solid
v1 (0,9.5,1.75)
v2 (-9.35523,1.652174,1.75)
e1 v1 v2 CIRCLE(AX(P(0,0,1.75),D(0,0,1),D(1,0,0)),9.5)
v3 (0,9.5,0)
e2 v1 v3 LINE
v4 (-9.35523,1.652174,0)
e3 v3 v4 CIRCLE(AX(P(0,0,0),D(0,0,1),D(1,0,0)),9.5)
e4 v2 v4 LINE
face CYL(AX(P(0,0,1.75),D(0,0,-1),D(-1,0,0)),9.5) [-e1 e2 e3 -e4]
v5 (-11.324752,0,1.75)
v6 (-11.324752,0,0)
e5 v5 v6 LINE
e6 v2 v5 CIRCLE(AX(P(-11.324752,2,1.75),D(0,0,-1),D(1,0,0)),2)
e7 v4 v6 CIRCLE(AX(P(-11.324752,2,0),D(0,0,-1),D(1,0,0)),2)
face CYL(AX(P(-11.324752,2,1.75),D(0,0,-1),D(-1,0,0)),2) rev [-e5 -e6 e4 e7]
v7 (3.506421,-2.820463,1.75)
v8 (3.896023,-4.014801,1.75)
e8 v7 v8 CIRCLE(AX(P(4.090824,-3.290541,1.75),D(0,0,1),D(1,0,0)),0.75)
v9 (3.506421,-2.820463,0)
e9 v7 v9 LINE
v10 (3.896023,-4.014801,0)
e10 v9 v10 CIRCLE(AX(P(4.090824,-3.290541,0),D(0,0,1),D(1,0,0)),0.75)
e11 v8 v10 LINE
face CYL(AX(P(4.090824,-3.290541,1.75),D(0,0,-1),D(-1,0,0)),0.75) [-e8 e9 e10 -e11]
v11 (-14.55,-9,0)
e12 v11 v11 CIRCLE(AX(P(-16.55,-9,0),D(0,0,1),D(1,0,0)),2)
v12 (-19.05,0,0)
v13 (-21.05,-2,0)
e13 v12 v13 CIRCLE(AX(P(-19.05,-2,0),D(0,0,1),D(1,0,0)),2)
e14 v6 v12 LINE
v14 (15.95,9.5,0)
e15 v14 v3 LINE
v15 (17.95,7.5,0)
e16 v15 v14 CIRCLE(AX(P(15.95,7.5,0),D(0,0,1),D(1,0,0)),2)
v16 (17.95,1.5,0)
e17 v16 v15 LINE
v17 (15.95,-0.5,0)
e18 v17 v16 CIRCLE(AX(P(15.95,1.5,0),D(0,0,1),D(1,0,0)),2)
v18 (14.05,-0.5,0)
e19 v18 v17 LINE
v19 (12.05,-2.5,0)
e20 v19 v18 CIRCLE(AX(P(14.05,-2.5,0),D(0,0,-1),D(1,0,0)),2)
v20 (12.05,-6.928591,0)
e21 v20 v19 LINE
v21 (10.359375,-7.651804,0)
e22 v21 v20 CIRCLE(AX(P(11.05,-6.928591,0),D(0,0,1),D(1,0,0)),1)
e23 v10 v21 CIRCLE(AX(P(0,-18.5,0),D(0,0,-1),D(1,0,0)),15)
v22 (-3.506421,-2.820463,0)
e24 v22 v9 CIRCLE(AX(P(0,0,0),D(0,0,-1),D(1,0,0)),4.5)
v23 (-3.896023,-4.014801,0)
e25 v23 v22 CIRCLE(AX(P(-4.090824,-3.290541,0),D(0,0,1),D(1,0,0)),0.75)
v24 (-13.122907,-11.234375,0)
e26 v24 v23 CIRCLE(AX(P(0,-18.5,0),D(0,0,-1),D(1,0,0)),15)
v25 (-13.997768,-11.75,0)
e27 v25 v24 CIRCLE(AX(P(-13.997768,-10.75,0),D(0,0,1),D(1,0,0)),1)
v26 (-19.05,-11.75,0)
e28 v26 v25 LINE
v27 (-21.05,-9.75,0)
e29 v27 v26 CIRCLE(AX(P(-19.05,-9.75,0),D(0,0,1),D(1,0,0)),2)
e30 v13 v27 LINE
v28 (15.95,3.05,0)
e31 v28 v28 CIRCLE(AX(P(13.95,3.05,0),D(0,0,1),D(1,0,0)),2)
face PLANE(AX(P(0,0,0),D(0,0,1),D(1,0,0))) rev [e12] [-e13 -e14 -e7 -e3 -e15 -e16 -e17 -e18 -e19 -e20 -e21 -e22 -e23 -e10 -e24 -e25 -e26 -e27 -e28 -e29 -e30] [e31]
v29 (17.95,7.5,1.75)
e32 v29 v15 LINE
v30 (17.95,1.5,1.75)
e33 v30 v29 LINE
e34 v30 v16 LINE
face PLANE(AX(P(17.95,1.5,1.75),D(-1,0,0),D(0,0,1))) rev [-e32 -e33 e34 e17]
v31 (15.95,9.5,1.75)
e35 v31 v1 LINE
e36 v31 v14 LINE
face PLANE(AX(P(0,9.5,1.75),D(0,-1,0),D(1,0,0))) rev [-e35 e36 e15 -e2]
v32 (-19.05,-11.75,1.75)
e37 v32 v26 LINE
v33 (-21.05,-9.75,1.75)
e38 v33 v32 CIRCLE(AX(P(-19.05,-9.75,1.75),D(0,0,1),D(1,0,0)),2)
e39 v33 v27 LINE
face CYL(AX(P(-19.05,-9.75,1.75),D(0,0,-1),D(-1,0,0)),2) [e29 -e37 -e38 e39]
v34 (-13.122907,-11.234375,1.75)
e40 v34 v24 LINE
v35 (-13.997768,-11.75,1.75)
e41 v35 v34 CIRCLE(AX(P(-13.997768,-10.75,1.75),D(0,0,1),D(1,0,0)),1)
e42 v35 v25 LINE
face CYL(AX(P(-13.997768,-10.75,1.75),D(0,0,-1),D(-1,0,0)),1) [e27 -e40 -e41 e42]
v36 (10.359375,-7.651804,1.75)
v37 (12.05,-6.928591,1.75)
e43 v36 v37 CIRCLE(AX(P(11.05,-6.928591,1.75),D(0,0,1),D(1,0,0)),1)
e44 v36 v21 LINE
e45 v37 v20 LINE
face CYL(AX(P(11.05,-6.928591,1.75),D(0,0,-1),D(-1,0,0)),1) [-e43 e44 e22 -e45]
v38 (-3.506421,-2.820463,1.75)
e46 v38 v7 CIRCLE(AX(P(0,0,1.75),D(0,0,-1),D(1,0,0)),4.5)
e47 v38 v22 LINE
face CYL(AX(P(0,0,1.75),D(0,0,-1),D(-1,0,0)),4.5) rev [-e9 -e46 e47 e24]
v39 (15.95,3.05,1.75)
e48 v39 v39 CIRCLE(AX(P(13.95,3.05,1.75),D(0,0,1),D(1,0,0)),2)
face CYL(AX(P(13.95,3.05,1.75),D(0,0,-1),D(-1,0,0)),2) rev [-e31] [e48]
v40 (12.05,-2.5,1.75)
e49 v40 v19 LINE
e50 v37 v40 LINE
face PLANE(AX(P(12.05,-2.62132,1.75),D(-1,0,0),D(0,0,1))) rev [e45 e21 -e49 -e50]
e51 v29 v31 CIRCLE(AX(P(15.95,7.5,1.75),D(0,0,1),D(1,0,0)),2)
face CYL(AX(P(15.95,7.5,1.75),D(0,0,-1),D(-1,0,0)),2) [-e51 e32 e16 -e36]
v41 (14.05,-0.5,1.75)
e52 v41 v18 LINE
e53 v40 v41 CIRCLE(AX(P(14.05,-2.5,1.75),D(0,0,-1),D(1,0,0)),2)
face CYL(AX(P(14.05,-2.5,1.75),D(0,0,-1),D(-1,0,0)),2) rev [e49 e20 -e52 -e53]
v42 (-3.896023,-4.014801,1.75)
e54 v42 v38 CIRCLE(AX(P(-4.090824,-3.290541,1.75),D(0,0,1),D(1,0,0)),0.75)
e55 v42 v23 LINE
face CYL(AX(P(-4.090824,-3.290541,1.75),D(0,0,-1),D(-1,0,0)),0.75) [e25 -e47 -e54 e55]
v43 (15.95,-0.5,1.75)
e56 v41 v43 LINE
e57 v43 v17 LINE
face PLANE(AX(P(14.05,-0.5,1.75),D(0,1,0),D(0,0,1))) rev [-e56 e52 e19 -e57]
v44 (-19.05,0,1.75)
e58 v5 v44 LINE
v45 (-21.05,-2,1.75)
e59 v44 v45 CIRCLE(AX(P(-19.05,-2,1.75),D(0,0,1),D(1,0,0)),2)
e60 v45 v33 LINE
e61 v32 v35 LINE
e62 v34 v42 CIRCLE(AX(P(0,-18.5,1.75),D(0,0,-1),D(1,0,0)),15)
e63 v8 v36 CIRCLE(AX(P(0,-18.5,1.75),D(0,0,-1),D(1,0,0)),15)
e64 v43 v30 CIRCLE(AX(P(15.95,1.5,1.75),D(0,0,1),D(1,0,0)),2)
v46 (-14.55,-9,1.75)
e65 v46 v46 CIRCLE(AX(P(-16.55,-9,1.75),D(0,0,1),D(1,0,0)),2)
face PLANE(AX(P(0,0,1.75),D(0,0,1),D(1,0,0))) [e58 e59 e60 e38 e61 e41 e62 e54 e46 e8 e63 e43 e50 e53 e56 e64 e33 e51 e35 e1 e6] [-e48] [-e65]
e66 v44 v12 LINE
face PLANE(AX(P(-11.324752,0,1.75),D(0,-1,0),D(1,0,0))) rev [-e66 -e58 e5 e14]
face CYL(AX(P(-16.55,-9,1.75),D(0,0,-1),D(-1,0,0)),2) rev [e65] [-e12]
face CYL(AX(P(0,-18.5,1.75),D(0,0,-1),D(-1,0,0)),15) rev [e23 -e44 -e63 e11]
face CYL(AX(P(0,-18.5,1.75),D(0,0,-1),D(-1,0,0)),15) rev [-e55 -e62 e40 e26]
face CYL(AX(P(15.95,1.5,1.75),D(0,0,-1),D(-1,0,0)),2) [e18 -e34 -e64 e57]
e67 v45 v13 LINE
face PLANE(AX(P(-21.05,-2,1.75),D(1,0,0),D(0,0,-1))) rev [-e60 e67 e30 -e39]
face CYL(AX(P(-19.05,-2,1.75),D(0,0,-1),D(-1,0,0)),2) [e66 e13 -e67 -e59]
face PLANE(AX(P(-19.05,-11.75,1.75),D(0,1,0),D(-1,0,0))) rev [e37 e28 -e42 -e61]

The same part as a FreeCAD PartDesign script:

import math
import FreeCAD as App
import Part
import Sketcher
from FreeCAD import Vector

doc = App.newDocument("Part")
params = doc.addObject("Spreadsheet::Sheet", "Params")
for row, (alias, value) in enumerate([
    ("sketch1_diameter", "4 mm"),
    ("sketch1_radius", "1 mm"),
    ("sketch1_radius2", "15 mm"),
    ("sketch1_radius3", "9.5 mm"),
    ("sketch1_radius4", "4.5 mm"),
    ("pad1_length", "1.75 mm"),
], start=1):
    params.set(f"A{row}", alias)
    params.set(f"B{row}", "=" + value)
    params.setAlias(f"B{row}", alias)

body = doc.addObject("PartDesign::Body", "Body")

# Sketch on XY plane
sketch1 = body.newObject("Sketcher::SketchObject", "Sketch")
sketch1.AttachmentSupport = (doc.getObject("XY_Plane"), [""])
sketch1.MapMode = "FlatFace"
sketch1.addGeometry([
    Part.LineSegment(Vector(15.9, 9.5, 0), Vector(0, 9.5, 0)),  # 0
    Part.ArcOfCircle(Part.Circle(Vector(0, 0, 0), Vector(0, 0, 1), 9.5), math.radians(90), math.radians(170)),  # 1
    Part.ArcOfCircle(Part.Circle(Vector(-11.3, 2, 0), Vector(0, 0, 1), 2), math.radians(-90), math.radians(-10)),  # 2
    Part.LineSegment(Vector(-11.3, 0, 0), Vector(-19.1, 0, 0)),  # 3
    Part.ArcOfCircle(Part.Circle(Vector(-19, -2, 0), Vector(0, 0, 1), 2), math.radians(90), math.radians(180)),  # 4
    Part.LineSegment(Vector(-21.1, -2, 0), Vector(-21.1, -9.8, 0)),  # 5
    Part.ArcOfCircle(Part.Circle(Vector(-19, -9.7, 0), Vector(0, 0, 1), 2), math.radians(-180), math.radians(-90)),  # 6
    Part.LineSegment(Vector(-19.1, -11.8, 0), Vector(-14, -11.8, 0)),  # 7
    Part.ArcOfCircle(Part.Circle(Vector(-14, -10.7, 0), Vector(0, 0, 1), 1), math.radians(-90), math.radians(-29)),  # 8
    Part.ArcOfCircle(Part.Circle(Vector(0, -18.5, 0), Vector(0, 0, 1), 15), math.radians(105), math.radians(151)),  # 9
    Part.ArcOfCircle(Part.Circle(Vector(-4.1, -3.3, 0), Vector(0, 0, 1), 0.8), math.radians(-75), math.radians(39)),  # 10
    Part.ArcOfCircle(Part.Circle(Vector(0, 0, 0), Vector(0, 0, 1), 4.5), math.radians(29), math.radians(219)),  # 11
    Part.ArcOfCircle(Part.Circle(Vector(0, 0, 0), Vector(0, 0, 1), 4.5), math.radians(-39), math.radians(29)),  # 12
    Part.ArcOfCircle(Part.Circle(Vector(4.1, -3.3, 0), Vector(0, 0, 1), 0.8), math.radians(141), math.radians(255)),  # 13
    Part.ArcOfCircle(Part.Circle(Vector(0, -18.5, 0), Vector(0, 0, 1), 15), math.radians(46), math.radians(75)),  # 14
    Part.ArcOfCircle(Part.Circle(Vector(11.1, -6.9, 0), Vector(0, 0, 1), 1), math.radians(-134), math.radians(0)),  # 15
    Part.LineSegment(Vector(12.1, -6.9, 0), Vector(12.1, -2.5, 0)),  # 16
    Part.ArcOfCircle(Part.Circle(Vector(14.1, -2.5, 0), Vector(0, 0, 1), 2), math.radians(90), math.radians(180)),  # 17
    Part.LineSegment(Vector(14.1, -0.5, 0), Vector(15.9, -0.5, 0)),  # 18
    Part.ArcOfCircle(Part.Circle(Vector(15.9, 1.5, 0), Vector(0, 0, 1), 2), math.radians(-90), math.radians(0)),  # 19
    Part.LineSegment(Vector(17.9, 1.5, 0), Vector(17.9, 7.5, 0)),  # 20
    Part.ArcOfCircle(Part.Circle(Vector(15.9, 7.5, 0), Vector(0, 0, 1), 2), math.radians(0), math.radians(90)),  # 21
    Part.Circle(Vector(-16.6, -9, 0), Vector(0, 0, 1), 2),  # 22
    Part.Circle(Vector(13.9, 3, 0), Vector(0, 0, 1), 2),  # 23
], False)
sketch1.addConstraint([
    Sketcher.Constraint("Tangent", 0, 2, 1, 1),
    Sketcher.Constraint("Tangent", 1, 2, 2, 2),
    Sketcher.Constraint("Tangent", 2, 1, 3, 1),
    Sketcher.Constraint("Tangent", 3, 2, 4, 1),
    Sketcher.Constraint("Tangent", 4, 2, 5, 1),
    Sketcher.Constraint("Tangent", 5, 2, 6, 1),
    Sketcher.Constraint("Tangent", 6, 2, 7, 1),
    Sketcher.Constraint("Tangent", 7, 2, 8, 1),
    Sketcher.Constraint("Tangent", 8, 2, 9, 2),
    Sketcher.Constraint("Tangent", 9, 1, 10, 1),
    Sketcher.Constraint("Tangent", 10, 2, 11, 2),
    Sketcher.Constraint("Tangent", 11, 1, 12, 2),
    Sketcher.Constraint("Tangent", 12, 1, 13, 1),
    Sketcher.Constraint("Tangent", 13, 2, 14, 2),
    Sketcher.Constraint("Tangent", 14, 1, 15, 1),
    Sketcher.Constraint("Tangent", 15, 2, 16, 1),
    Sketcher.Constraint("Tangent", 16, 2, 17, 2),
    Sketcher.Constraint("Tangent", 17, 1, 18, 1),
    Sketcher.Constraint("Tangent", 18, 2, 19, 1),
    Sketcher.Constraint("Tangent", 19, 2, 20, 1),
    Sketcher.Constraint("Tangent", 20, 2, 21, 1),
    Sketcher.Constraint("Tangent", 21, 2, 0, 1),
    Sketcher.Constraint("Horizontal", 0),
    Sketcher.Constraint("Horizontal", 3),
    Sketcher.Constraint("Vertical", 5),
    Sketcher.Constraint("Horizontal", 7),
    Sketcher.Constraint("Vertical", 16),
    Sketcher.Constraint("Horizontal", 18),
    Sketcher.Constraint("Vertical", 20),
    Sketcher.Constraint("Coincident", 1, 3, -1, 1),
    Sketcher.Constraint("Coincident", 11, 3, -1, 1),
    Sketcher.Constraint("Coincident", 14, 3, 9, 3),
    Sketcher.Constraint("Equal", 2, 4),
    Sketcher.Constraint("Equal", 4, 6),
    Sketcher.Constraint("Equal", 11, 12),
    Sketcher.Constraint("Equal", 10, 13),
    Sketcher.Constraint("Equal", 9, 14),
    Sketcher.Constraint("Equal", 8, 15),
    Sketcher.Constraint("Equal", 6, 17),
    Sketcher.Constraint("Equal", 17, 19),
    Sketcher.Constraint("Equal", 19, 21),
    Sketcher.Constraint("Equal", 21, 22),
    Sketcher.Constraint("Equal", 22, 23),
    Sketcher.Constraint("PointOnObject", 9, 3, -2),
    Sketcher.Constraint("PointOnObject", 2, 1, -1),
    Sketcher.Constraint("Diameter", 22, 4.0),
    Sketcher.Constraint("Radius", 8, 1.0),
    Sketcher.Constraint("Radius", 9, 15.0),
    Sketcher.Constraint("Radius", 1, 9.5),
    Sketcher.Constraint("Radius", 11, 4.5),
    Sketcher.Constraint("DistanceY", 20, 1, 20, 2, 6.0),
    Sketcher.Constraint("Radius", 10, 0.75),
    Sketcher.Constraint("DistanceX", 18, 1, 18, 2, 1.9),
    Sketcher.Constraint("DistanceY", 22, 3, -1, 1, 9.0),
    Sketcher.Constraint("DistanceX", 23, 3, 19, 3, 2.0),
    Sketcher.Constraint("DistanceX", 0, 2, 0, 1, 15.95),
    Sketcher.Constraint("DistanceY", 5, 2, 5, 1, 7.75),
    Sketcher.Constraint("DistanceY", 9, 3, -1, 1, 18.5),
    Sketcher.Constraint("DistanceX", 6, 3, 22, 3, 2.5),
    Sketcher.Constraint("DistanceX", 4, 3, -1, 1, 19.05),
    Sketcher.Constraint("DistanceY", -1, 1, 23, 3, 3.05),
    Sketcher.Constraint("DistanceX", -1, 1, 11, 1, 3.95),
])
sketch1.setExpression("Constraints[45]", "Params.sketch1_diameter")
sketch1.setExpression("Constraints[46]", "Params.sketch1_radius")
sketch1.setExpression("Constraints[47]", "Params.sketch1_radius2")
sketch1.setExpression("Constraints[48]", "Params.sketch1_radius3")
sketch1.setExpression("Constraints[49]", "Params.sketch1_radius4")
pad1 = body.newObject("PartDesign::Pad", "Pad")
pad1.Profile = sketch1
pad1.setExpression("Length", "Params.pad1_length")

doc.recompute()
